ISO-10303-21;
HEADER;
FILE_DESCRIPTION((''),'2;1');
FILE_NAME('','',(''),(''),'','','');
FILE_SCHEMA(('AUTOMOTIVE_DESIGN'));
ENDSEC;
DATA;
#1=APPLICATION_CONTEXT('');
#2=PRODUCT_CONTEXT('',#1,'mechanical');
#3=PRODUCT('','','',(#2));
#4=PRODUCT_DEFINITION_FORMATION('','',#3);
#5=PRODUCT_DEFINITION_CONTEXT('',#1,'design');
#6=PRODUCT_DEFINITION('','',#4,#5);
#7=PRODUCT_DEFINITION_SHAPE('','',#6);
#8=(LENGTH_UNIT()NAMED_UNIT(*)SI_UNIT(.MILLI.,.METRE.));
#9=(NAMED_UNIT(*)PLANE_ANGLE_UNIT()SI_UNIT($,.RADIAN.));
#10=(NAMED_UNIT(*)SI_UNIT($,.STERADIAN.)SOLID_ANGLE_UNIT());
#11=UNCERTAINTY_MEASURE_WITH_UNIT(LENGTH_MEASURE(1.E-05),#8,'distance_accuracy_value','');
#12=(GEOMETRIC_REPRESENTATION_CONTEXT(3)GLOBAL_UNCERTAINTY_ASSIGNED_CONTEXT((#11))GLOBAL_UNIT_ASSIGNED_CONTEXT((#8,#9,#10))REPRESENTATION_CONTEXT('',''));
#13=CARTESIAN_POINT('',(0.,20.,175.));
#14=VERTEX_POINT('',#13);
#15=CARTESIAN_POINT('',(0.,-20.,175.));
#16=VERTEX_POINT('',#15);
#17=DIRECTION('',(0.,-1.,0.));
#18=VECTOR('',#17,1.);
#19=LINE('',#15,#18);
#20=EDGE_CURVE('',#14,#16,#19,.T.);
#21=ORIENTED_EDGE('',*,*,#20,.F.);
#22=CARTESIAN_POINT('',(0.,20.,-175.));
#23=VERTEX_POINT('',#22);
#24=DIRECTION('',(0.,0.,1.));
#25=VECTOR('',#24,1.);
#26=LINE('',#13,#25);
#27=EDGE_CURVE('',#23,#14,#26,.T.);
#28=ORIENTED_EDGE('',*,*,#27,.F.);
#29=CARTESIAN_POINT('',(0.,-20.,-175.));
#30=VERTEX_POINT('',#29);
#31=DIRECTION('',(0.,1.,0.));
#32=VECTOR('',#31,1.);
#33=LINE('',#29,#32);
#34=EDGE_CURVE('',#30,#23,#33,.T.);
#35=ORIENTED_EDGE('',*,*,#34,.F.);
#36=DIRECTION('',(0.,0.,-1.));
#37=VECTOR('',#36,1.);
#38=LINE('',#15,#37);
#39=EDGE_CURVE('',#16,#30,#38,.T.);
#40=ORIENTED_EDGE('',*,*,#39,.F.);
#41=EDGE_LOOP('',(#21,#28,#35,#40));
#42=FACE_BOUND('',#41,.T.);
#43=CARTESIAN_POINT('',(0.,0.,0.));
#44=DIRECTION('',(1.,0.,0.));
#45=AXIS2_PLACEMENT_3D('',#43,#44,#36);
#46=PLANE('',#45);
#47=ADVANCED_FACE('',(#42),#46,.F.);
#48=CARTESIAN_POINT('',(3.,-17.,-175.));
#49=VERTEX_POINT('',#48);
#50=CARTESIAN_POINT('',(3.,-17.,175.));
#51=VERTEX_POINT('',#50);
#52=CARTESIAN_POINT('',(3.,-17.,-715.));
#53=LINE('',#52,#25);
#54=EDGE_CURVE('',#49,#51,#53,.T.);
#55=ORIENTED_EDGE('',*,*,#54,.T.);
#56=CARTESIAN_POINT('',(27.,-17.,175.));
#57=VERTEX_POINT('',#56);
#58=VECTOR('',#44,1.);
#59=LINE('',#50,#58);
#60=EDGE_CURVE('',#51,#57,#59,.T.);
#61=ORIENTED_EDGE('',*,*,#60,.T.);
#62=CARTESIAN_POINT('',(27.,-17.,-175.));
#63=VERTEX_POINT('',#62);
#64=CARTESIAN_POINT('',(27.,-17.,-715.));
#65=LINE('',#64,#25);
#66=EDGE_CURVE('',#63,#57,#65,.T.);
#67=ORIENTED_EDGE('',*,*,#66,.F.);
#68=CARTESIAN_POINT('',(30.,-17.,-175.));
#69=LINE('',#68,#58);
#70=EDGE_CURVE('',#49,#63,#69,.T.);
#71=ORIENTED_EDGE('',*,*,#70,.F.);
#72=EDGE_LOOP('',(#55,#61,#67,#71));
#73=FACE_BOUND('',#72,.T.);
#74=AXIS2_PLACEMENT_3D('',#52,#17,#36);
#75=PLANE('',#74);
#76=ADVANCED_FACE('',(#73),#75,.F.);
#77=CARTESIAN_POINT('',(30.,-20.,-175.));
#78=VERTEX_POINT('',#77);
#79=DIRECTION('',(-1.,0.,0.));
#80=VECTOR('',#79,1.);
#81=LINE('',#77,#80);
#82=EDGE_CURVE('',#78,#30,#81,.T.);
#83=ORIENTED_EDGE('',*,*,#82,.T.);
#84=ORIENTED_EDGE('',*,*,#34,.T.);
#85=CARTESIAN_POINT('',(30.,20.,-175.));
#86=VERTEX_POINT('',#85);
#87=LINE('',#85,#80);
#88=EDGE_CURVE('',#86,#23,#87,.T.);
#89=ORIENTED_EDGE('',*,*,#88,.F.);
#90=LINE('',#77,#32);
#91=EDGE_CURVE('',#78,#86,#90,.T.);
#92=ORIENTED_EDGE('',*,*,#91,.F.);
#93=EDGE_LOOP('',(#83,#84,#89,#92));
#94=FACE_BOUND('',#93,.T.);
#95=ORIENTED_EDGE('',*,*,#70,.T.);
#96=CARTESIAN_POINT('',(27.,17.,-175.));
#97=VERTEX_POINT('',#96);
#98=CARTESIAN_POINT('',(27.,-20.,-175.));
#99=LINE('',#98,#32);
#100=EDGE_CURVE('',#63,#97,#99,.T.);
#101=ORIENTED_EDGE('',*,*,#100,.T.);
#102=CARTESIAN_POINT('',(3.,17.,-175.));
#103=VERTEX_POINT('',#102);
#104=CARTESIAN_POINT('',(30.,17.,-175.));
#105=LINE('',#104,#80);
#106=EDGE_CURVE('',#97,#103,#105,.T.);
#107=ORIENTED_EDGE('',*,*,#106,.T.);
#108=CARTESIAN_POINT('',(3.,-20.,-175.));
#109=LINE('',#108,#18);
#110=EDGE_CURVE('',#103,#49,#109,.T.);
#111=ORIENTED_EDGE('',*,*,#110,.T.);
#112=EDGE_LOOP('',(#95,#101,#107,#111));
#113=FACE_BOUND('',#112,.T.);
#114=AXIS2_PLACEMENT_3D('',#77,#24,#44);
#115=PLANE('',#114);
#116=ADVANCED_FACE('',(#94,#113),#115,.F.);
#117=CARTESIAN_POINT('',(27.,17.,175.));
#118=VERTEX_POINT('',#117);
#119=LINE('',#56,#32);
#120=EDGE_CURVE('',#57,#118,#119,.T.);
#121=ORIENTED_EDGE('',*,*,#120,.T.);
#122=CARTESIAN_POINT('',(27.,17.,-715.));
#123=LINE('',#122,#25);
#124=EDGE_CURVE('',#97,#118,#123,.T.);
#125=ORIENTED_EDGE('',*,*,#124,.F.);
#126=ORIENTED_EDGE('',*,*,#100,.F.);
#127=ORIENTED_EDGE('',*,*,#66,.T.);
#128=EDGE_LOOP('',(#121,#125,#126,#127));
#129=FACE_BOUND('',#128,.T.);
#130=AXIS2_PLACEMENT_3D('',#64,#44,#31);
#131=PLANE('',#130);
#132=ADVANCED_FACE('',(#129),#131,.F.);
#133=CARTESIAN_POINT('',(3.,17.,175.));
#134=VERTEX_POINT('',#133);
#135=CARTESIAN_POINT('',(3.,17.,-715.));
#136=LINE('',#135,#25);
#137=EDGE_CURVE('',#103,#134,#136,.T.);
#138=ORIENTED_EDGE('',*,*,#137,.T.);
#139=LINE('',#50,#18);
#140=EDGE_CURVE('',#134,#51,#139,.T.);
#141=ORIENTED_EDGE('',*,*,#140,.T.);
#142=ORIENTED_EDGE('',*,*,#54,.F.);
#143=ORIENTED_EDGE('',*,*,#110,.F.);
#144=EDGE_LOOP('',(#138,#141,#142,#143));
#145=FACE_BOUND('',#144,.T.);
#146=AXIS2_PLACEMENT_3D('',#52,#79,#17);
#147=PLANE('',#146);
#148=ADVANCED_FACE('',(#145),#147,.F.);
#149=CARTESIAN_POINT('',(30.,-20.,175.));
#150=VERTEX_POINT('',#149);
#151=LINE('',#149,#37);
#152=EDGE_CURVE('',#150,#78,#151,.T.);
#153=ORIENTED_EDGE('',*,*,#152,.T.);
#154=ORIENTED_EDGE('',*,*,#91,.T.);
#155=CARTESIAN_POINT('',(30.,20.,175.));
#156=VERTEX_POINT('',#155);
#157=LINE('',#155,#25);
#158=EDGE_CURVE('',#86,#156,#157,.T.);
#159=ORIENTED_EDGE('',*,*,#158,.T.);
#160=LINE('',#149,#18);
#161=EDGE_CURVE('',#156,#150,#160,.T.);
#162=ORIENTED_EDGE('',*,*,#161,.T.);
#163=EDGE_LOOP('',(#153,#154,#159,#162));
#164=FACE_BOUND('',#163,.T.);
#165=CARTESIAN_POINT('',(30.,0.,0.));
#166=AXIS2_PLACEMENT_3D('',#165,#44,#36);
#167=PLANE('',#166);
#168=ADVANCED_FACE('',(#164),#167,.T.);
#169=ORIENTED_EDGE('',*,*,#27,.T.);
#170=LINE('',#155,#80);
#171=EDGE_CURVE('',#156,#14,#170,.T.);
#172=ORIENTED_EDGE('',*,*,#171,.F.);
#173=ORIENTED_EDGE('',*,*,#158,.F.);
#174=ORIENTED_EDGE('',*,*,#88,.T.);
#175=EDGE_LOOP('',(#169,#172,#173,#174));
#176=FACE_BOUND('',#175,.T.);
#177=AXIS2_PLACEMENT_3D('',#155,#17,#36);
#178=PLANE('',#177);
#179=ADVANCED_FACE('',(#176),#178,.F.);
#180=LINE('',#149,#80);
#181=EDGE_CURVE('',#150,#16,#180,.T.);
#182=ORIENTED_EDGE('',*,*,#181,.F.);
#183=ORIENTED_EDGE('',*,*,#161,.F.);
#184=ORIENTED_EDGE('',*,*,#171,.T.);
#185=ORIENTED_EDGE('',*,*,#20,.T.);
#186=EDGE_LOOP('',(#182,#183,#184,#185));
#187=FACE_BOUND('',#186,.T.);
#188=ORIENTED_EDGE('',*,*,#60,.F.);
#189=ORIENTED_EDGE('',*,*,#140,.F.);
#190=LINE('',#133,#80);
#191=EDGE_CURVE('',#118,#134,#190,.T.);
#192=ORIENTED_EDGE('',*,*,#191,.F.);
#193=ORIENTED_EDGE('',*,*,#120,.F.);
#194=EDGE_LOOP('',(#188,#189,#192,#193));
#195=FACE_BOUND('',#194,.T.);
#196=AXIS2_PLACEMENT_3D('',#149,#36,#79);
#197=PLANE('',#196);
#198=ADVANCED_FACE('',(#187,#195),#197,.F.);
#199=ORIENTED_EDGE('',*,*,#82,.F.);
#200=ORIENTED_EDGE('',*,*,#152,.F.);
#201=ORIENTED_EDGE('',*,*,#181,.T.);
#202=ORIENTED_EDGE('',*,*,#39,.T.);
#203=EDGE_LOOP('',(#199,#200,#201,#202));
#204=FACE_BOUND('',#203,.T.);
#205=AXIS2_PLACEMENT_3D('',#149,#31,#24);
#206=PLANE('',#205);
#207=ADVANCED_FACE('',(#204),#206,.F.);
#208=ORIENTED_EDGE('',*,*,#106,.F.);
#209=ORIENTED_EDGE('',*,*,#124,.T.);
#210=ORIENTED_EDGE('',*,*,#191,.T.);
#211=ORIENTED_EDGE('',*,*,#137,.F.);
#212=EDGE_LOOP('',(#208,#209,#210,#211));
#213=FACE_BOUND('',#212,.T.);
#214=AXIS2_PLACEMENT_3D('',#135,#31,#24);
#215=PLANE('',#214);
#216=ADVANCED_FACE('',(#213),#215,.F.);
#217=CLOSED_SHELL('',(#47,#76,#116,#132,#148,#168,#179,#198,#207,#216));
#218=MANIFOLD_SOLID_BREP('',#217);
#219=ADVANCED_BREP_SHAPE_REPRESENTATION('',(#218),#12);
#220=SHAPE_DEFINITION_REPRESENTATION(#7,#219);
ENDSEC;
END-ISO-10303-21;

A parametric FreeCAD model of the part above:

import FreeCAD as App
import Part
import Sketcher
Q = App.Units.Quantity

doc = App.newDocument("Part")
params = doc.addObject("Spreadsheet::Sheet", "Params")
for row, (alias, value) in enumerate([
    ("sketch1_width", "40 mm"),
    ("sketch1_height", "350 mm"),
    ("pad1_length", "30 mm"),
    ("sketch2_width", "24 mm"),
    ("sketch2_height", "34 mm"),
    ("pocket1_length", "890 mm"),
], start=1):
    params.set(f"A{row}", alias)
    params.set(f"B{row}", "=" + value)
    params.setAlias(f"B{row}", alias)

body = doc.addObject("PartDesign::Body", "Body")

# Sketch on YZ plane
sketch1 = body.newObject("Sketcher::SketchObject", "Sketch")
sketch1.AttachmentSupport = (doc.getObject("YZ_Plane"), [""])
sketch1.MapMode = "FlatFace"
sketch1.addGeometry([
    Part.LineSegment(App.Vector(20, 175, 0), App.Vector(-20, 175, 0)),
    Part.LineSegment(App.Vector(-20, 175, 0), App.Vector(-20, -175, 0)),
    Part.LineSegment(App.Vector(-20, -175, 0), App.Vector(20, -175, 0)),
    Part.LineSegment(App.Vector(20, -175, 0), App.Vector(20, 175, 0)),
], False)
sketch1.addConstraint([
    Sketcher.Constraint("Coincident", 0, 2, 1, 1),
    Sketcher.Constraint("Coincident", 1, 2, 2, 1),
    Sketcher.Constraint("Coincident", 2, 2, 3, 1),
    Sketcher.Constraint("Coincident", 3, 2, 0, 1),
    Sketcher.Constraint("Horizontal", 0),
    Sketcher.Constraint("Vertical", 1),
    Sketcher.Constraint("Horizontal", 2),
    Sketcher.Constraint("Vertical", 3),
    Sketcher.Constraint("Symmetric", 0, 2, 2, 2, -1, 1),
    Sketcher.Constraint("DistanceX", 0, 2, 0, 1, Q("40 mm")),
    Sketcher.Constraint("DistanceY", 1, 2, 1, 1, Q("350 mm")),
])
sketch1.setExpression("Constraints[9]", "Params.sketch1_width")
sketch1.setExpression("Constraints[10]", "Params.sketch1_height")
pad1 = body.newObject("PartDesign::Pad", "Pad")
pad1.Profile = sketch1
pad1.setExpression("Length", "Params.pad1_length")

# Sketch on XY plane
sketch2 = body.newObject("Sketcher::SketchObject", "Sketch001")
sketch2.AttachmentSupport = (doc.getObject("XY_Plane"), [""])
sketch2.MapMode = "FlatFace"
sketch2.AttachmentOffset = App.Placement(App.Vector(0, 0, 175), App.Rotation())
sketch2.addGeometry([
    Part.LineSegment(App.Vector(3, 17, 0), App.Vector(3, -17, 0)),
    Part.LineSegment(App.Vector(3, -17, 0), App.Vector(27, -17, 0)),
    Part.LineSegment(App.Vector(27, -17, 0), App.Vector(27, 17, 0)),
    Part.LineSegment(App.Vector(27, 17, 0), App.Vector(3, 17, 0)),
], False)
sketch2.addConstraint([
    Sketcher.Constraint("Coincident", 0, 2, 1, 1),
    Sketcher.Constraint("Coincident", 1, 2, 2, 1),
    Sketcher.Constraint("Coincident", 2, 2, 3, 1),
    Sketcher.Constraint("Coincident", 3, 2, 0, 1),
    Sketcher.Constraint("Vertical", 0),
    Sketcher.Constraint("Horizontal", 1),
    Sketcher.Constraint("Vertical", 2),
    Sketcher.Constraint("Horizontal", 3),
    Sketcher.Constraint("DistanceX", 1, 1, 1, 2, Q("24 mm")),
    Sketcher.Constraint("DistanceY", 0, 2, 0, 1, Q("34 mm")),
    Sketcher.Constraint("DistanceX", -1, 1, 0, 2, Q("3 mm")),
    Sketcher.Constraint("DistanceY", 0, 2, -1, 1, Q("17 mm")),
])
sketch2.setExpression("Constraints[8]", "Params.sketch2_width")
sketch2.setExpression("Constraints[9]", "Params.sketch2_height")
pocket1 = body.newObject("PartDesign::Pocket", "Pocket")
pocket1.Profile = sketch2
pocket1.setExpression("Length", "Params.pocket1_length")

doc.recompute()
